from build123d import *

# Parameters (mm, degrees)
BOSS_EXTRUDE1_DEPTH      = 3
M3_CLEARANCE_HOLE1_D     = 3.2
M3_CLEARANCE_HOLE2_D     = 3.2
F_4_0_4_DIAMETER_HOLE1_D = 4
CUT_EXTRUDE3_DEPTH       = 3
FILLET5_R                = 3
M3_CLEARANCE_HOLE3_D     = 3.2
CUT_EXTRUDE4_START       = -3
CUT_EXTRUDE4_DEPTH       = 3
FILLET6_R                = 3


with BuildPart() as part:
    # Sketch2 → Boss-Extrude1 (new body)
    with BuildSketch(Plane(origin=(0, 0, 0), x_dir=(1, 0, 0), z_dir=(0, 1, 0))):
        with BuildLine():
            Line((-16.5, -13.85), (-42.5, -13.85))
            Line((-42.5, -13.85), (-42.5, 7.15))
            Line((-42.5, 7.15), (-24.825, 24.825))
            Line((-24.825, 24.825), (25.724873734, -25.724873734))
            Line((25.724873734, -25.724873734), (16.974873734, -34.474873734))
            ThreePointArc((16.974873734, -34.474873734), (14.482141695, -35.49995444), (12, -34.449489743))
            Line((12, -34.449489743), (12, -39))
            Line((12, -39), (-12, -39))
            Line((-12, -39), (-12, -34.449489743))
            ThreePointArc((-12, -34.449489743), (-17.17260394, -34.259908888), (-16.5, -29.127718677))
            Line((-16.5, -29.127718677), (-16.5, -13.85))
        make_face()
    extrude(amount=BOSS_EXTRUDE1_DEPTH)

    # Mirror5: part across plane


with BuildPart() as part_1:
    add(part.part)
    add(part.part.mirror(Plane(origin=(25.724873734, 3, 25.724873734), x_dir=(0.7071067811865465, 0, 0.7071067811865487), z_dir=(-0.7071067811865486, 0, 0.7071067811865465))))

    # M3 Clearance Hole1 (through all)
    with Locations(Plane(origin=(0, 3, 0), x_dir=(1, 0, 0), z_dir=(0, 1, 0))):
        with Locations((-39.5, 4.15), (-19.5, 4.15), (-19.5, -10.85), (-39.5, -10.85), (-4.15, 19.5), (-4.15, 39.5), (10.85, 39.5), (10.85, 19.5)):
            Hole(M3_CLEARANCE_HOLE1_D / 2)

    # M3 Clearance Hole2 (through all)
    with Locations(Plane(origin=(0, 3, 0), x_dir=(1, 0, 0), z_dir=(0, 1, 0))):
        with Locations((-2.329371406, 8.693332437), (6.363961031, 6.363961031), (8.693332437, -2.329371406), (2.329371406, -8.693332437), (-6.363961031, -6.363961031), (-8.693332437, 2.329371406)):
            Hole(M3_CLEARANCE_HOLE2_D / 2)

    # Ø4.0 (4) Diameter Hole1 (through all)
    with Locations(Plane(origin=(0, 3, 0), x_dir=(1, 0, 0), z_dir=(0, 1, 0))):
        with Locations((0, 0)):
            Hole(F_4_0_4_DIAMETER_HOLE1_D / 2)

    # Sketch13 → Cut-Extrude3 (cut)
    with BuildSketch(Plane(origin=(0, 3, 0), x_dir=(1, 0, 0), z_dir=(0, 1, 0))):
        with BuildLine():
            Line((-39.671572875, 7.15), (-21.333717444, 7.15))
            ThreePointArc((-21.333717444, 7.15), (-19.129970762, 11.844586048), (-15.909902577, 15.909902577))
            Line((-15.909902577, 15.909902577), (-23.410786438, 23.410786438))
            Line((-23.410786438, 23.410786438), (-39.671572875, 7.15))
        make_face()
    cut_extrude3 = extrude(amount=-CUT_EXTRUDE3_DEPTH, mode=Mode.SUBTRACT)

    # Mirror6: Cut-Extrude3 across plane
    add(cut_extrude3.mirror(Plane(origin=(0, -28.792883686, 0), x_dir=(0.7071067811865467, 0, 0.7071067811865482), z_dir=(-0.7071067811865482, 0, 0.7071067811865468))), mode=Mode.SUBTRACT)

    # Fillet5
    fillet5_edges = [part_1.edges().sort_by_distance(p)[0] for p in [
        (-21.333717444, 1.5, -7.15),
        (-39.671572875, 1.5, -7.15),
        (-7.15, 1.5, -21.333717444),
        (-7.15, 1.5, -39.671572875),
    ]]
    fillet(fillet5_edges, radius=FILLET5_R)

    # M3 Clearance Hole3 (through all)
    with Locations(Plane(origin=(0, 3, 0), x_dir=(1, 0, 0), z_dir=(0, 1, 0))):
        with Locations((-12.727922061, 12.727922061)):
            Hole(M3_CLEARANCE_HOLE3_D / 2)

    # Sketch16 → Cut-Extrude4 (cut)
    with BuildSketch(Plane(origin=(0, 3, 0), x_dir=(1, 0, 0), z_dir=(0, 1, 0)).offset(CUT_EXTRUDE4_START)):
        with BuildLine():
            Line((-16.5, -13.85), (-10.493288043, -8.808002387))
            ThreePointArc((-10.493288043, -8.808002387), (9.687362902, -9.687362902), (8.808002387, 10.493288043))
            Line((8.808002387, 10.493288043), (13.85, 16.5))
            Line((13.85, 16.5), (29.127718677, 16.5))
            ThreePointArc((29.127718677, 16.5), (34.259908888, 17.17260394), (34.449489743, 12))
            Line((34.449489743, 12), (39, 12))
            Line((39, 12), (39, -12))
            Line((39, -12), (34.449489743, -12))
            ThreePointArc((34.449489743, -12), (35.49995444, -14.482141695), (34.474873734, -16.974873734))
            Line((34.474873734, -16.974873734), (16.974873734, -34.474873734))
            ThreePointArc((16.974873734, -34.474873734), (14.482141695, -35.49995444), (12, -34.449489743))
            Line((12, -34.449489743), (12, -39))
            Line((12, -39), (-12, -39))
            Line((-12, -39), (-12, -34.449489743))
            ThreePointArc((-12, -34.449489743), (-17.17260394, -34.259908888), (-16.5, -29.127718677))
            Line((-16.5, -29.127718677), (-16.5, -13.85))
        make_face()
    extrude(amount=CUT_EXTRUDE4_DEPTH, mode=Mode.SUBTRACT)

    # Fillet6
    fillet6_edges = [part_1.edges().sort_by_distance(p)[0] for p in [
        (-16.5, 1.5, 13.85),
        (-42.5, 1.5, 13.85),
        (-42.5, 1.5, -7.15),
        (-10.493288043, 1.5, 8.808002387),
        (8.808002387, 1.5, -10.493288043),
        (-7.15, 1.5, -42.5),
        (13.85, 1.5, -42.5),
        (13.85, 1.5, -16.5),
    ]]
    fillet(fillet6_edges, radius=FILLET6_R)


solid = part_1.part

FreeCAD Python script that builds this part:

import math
import FreeCAD as App
import Part
import Sketcher
Q = App.Units.Quantity


def edges_at(feature, points):
    """Names of the edges that pass closest to the given points."""
    edges = feature.Shape.Edges
    near = lambda p: min(range(len(edges)), key=lambda i: edges[i].distToShape(Part.Vertex(*p))[0])
    return sorted({f"Edge{near(p) + 1}" for p in points})

doc = App.newDocument("Part")
body = doc.addObject("PartDesign::Body", "Body")

# Sketch on XZ plane
sketch1 = body.newObject("Sketcher::SketchObject", "Sketch")
sketch1.AttachmentSupport = (doc.getObject("XZ_Plane"), [""])
sketch1.MapMode = "FlatFace"
sketch1.addGeometry([
    Part.LineSegment(App.Vector(-42.5, 13.8, 0), App.Vector(-16.5, 13.8, 0)),  # 0
    Part.LineSegment(App.Vector(-16.5, 13.8, 0), App.Vector(-16.5, 29.1, 0)),  # 1
    Part.ArcOfCircle(Part.Circle(App.Vector(-14.5, 32, 0), App.Vector(0, 0, 1), 3.5), math.radians(44), math.radians(235)),  # 2
    Part.LineSegment(App.Vector(-12, 34.4, 0), App.Vector(-12, 39, 0)),  # 3
    Part.LineSegment(App.Vector(-12, 39, 0), App.Vector(12, 39, 0)),  # 4
    Part.LineSegment(App.Vector(12, 39, 0), App.Vector(12, 34.4, 0)),  # 5
    Part.ArcOfCircle(Part.Circle(App.Vector(14.5, 32, 0), App.Vector(0, 0, 1), 3.5), math.radians(45), math.radians(136)),  # 6
    Part.LineSegment(App.Vector(17, 34.5, 0), App.Vector(25.7, 25.7, 0)),  # 7
    Part.LineSegment(App.Vector(25.7, 25.7, 0), App.Vector(-24.8, -24.8, 0)),  # 8
    Part.LineSegment(App.Vector(-24.8, -24.8, 0), App.Vector(-42.5, -7.2, 0)),  # 9
    Part.LineSegment(App.Vector(-42.5, -7.2, 0), App.Vector(-42.5, 13.8, 0)),  # 10
], False)
sketch1.addConstraint([
    Sketcher.Constraint("Coincident", 0, 2, 1, 1),
    Sketcher.Constraint("Coincident", 1, 2, 2, 2),
    Sketcher.Constraint("Coincident", 2, 1, 3, 1),
    Sketcher.Constraint("Coincident", 3, 2, 4, 1),
    Sketcher.Constraint("Coincident", 4, 2, 5, 1),
    Sketcher.Constraint("Coincident", 5, 2, 6, 2),
    Sketcher.Constraint("Tangent", 6, 1, 7, 1),
    Sketcher.Constraint("Coincident", 7, 2, 8, 1),
    Sketcher.Constraint("Coincident", 8, 2, 9, 1),
    Sketcher.Constraint("Coincident", 9, 2, 10, 1),
    Sketcher.Constraint("Coincident", 10, 2, 0, 1),
    Sketcher.Constraint("Horizontal", 0),
    Sketcher.Constraint("Vertical", 1),
    Sketcher.Constraint("Vertical", 3),
    Sketcher.Constraint("Horizontal", 4),
    Sketcher.Constraint("Vertical", 5),
    Sketcher.Constraint("Vertical", 10),
    Sketcher.Constraint("Equal", 2, 6),
    Sketcher.Constraint("Symmetric", 2, 3, 6, 3, -2),
    Sketcher.Constraint("Perpendicular", 7, 8),
    Sketcher.Constraint("Perpendicular", 8, 9),
    Sketcher.Constraint("Horizontal", 2, 1, 5, 2),
    Sketcher.Constraint("Radius", 2, 3.5),
    Sketcher.Constraint("DistanceX", 0, 1, 0, 2, 26.0),
    Sketcher.Constraint("DistanceX", 4, 1, 4, 2, 24.0),
    Sketcher.Constraint("DistanceY", 10, 1, 10, 2, 21.0),
    Sketcher.Constraint("Angle", 7, Q("-45 deg")),
    Sketcher.Constraint("DistanceY", -1, 1, 2, 3, 32.0),
    Sketcher.Constraint("DistanceY", -1, 1, 3, 2, 39.0),
    Sketcher.Constraint("DistanceX", 2, 3, 6, 3, 29.0),
    Sketcher.Constraint("DistanceX", 0, 2, 2, 3, 2.0),
    Sketcher.Constraint("DistanceY", -1, 1, 0, 2, 13.85),
    Sketcher.Constraint("DistanceX", 6, 1, 7, 2, 8.75),
])
pad1 = body.newObject("PartDesign::Pad", "Pad")
pad1.Profile = sketch1
pad1.Length = 3
pad1.Reversed = True
body2 = doc.addObject("PartDesign::Body", "Body001")
doc.recompute()

body2.BaseFeature = body
doc.recompute()

mirroring = doc.addObject("Part::Mirroring", "Mirroring")
mirroring.Source = body
mirroring.Base = App.Vector(25.724874, 3, 25.724874)
mirroring.Normal = App.Vector(-0.707106781, 0, 0.707106781)
body3 = doc.addObject("PartDesign::Body", "Body002")
body3.BaseFeature = mirroring
boolean = body2.newObject("PartDesign::Boolean", "Boolean")
boolean.Type = "Fuse"
boolean.addObjects([body3])
doc.recompute()

# Sketch on XZ plane
sketch2 = body2.newObject("Sketcher::SketchObject", "Sketch001")
sketch2.AttachmentSupport = (doc.getObject("XZ_Plane001"), [""])
sketch2.MapMode = "FlatFace"
sketch2.AttachmentOffset = App.Placement(App.Vector(0, 0, -3), App.Rotation())
sketch2.addGeometry([
    Part.Circle(App.Vector(-39.5, -4.2, 0), App.Vector(0, 0, 1), 1.6),  # 0
    Part.Circle(App.Vector(-19.5, -4.2, 0), App.Vector(0, 0, 1), 1.6),  # 1
    Part.Circle(App.Vector(-19.5, 10.8, 0), App.Vector(0, 0, 1), 1.6),  # 2
    Part.Circle(App.Vector(-39.5, 10.8, 0), App.Vector(0, 0, 1), 1.6),  # 3
    Part.Circle(App.Vector(-4.2, -19.5, 0), App.Vector(0, 0, 1), 1.6),  # 4
    Part.Circle(App.Vector(-4.2, -39.5, 0), App.Vector(0, 0, 1), 1.6),  # 5
    Part.Circle(App.Vector(10.8, -39.5, 0), App.Vector(0, 0, 1), 1.6),  # 6
    Part.Circle(App.Vector(10.8, -19.5, 0), App.Vector(0, 0, 1), 1.6),  # 7
], False)
sketch2.addConstraint([
    Sketcher.Constraint("Equal", 0, 1),
    Sketcher.Constraint("Equal", 1, 2),
    Sketcher.Constraint("Equal", 2, 3),
    Sketcher.Constraint("Equal", 3, 4),
    Sketcher.Constraint("Equal", 4, 5),
    Sketcher.Constraint("Equal", 5, 6),
    Sketcher.Constraint("Equal", 6, 7),
    Sketcher.Constraint("Horizontal", 0, 3, 1, 3),
    Sketcher.Constraint("Horizontal", 2, 3, 3, 3),
    Sketcher.Constraint("Horizontal", 5, 3, 6, 3),
    Sketcher.Constraint("Horizontal", 4, 3, 7, 3),
    Sketcher.Constraint("Vertical", 1, 3, 2, 3),
    Sketcher.Constraint("Vertical", 0, 3, 3, 3),
    Sketcher.Constraint("Vertical", 4, 3, 5, 3),
    Sketcher.Constraint("Vertical", 6, 3, 7, 3),
    Sketcher.Constraint("Diameter", 0, 3.2),
    Sketcher.Constraint("DistanceX", 0, 3, 1, 3, 20.0),
    Sketcher.Constraint("DistanceY", 1, 3, 2, 3, 15.0),
    Sketcher.Constraint("DistanceY", 5, 3, 4, 3, 20.0),
    Sketcher.Constraint("DistanceX", 5, 3, 6, 3, 15.0),
    Sketcher.Constraint("DistanceX", 0, 3, -1, 1, 39.5),
    Sketcher.Constraint("DistanceY", 4, 3, -1, 1, 19.5),
    Sketcher.Constraint("DistanceY", 0, 3, -1, 1, 4.15),
    Sketcher.Constraint("DistanceX", 4, 3, -1, 1, 4.15),
])
doc.recompute()
hole = body2.newObject("PartDesign::Hole", "Hole")
hole.Profile = sketch2
hole.ThreadType = "None"
hole.Diameter = 3.2
hole.DepthType = "ThroughAll"
hole.Reversed = True

# Sketch on XZ plane
sketch3 = body2.newObject("Sketcher::SketchObject", "Sketch002")
sketch3.AttachmentSupport = (doc.getObject("XZ_Plane001"), [""])
sketch3.MapMode = "FlatFace"
sketch3.AttachmentOffset = App.Placement(App.Vector(0, 0, -3), App.Rotation())
sketch3.addGeometry([
    Part.Circle(App.Vector(-2.3, -8.7, 0), App.Vector(0, 0, 1), 1.6),  # 0
    Part.Circle(App.Vector(6.4, -6.4, 0), App.Vector(0, 0, 1), 1.6),  # 1
    Part.Circle(App.Vector(8.7, 2.3, 0), App.Vector(0, 0, 1), 1.6),  # 2
    Part.Circle(App.Vector(2.3, 8.7, 0), App.Vector(0, 0, 1), 1.6),  # 3
    Part.Circle(App.Vector(-6.4, 6.4, 0), App.Vector(0, 0, 1), 1.6),  # 4
    Part.Circle(App.Vector(-8.7, -2.3, 0), App.Vector(0, 0, 1), 1.6),  # 5
], False)
sketch3.addConstraint([
    Sketcher.Constraint("Equal", 0, 1),
    Sketcher.Constraint("Equal", 1, 2),
    Sketcher.Constraint("Equal", 2, 3),
    Sketcher.Constraint("Equal", 3, 4),
    Sketcher.Constraint("Equal", 4, 5),
    Sketcher.Constraint("Symmetric", 0, 3, 3, 3, -1, 1),
    Sketcher.Constraint("Symmetric", 1, 3, 4, 3, -1, 1),
    Sketcher.Constraint("Symmetric", 2, 3, 5, 3, -1, 1),
    Sketcher.Constraint("Diameter", 0, 3.2),
    Sketcher.Constraint("DistanceX", 0, 3, -1, 1, 2.329371),
    Sketcher.Constraint("DistanceX", -1, 1, 1, 3, 6.363961),
    Sketcher.Constraint("DistanceY", 1, 3, -1, 1, 6.363961),
    Sketcher.Constraint("DistanceY", -1, 1, 2, 3, 2.329371),
    Sketcher.Constraint("DistanceY", 0, 3, 1, 3, 2.329371),
    Sketcher.Constraint("DistanceX", 1, 3, 2, 3, 2.329371),
])
doc.recompute()
hole2 = body2.newObject("PartDesign::Hole", "Hole001")
hole2.Profile = sketch3
hole2.ThreadType = "None"
hole2.Diameter = 3.2
hole2.DepthType = "ThroughAll"
hole2.Reversed = True

# Sketch on XZ plane
sketch4 = body2.newObject("Sketcher::SketchObject", "Sketch003")
sketch4.AttachmentSupport = (doc.getObject("XZ_Plane001"), [""])
sketch4.MapMode = "FlatFace"
sketch4.AttachmentOffset = App.Placement(App.Vector(0, 0, -3), App.Rotation())
sketch4.addGeometry(Part.Circle(App.Vector(0, 0, 0), App.Vector(0, 0, 1), 2), False)
sketch4.addConstraint([
    Sketcher.Constraint("Coincident", 0, 3, -1, 1),
    Sketcher.Constraint("Diameter", 0, 4.0),
])
doc.recompute()
hole3 = body2.newObject("PartDesign::Hole", "Hole002")
hole3.Profile = sketch4
hole3.ThreadType = "None"
hole3.Diameter = 4
hole3.DepthType = "ThroughAll"
hole3.Reversed = True

# Sketch on XZ plane
sketch5 = body2.newObject("Sketcher::SketchObject", "Sketch004")
sketch5.AttachmentSupport = (doc.getObject("XZ_Plane001"), [""])
sketch5.MapMode = "FlatFace"
sketch5.AttachmentOffset = App.Placement(App.Vector(0, 0, -3), App.Rotation())
sketch5.addGeometry([
    Part.LineSegment(App.Vector(-40, -7, 0), App.Vector(-21, -7, 0)),
    Part.ArcOfCircle(Part.Circle(App.Vector(0, 0, 0), App.Vector(0, 0, 1), 22), math.radians(-161), math.radians(-135)),
    Part.LineSegment(App.Vector(-16, -16, 0), App.Vector(-23, -23, 0)),
    Part.LineSegment(App.Vector(-23, -23, 0), App.Vector(-40, -7, 0)),
], False)
sketch5.addConstraint([
    Sketcher.Constraint("Coincident", 0, 2, 1, 1),
    Sketcher.Constraint("Coincident", 1, 2, 2, 1),
    Sketcher.Constraint("Coincident", 2, 2, 3, 1),
    Sketcher.Constraint("Coincident", 3, 2, 0, 1),
    Sketcher.Constraint("Horizontal", 0),
    Sketcher.Constraint("Coincident", 1, 3, -1, 1),
    Sketcher.Constraint("Perpendicular", 2, 3),
    Sketcher.Constraint("Radius", 1, 22.5),
    Sketcher.Constraint("Angle", 2, Q("-135 deg")),
    Sketcher.Constraint("DistanceY", 0, 2, -1, 1, 7.15),
    Sketcher.Constraint("Distance", 2, 10.607852),
    Sketcher.Constraint("DistanceX", 2, 2, 0, 2, 2.077069),
])
pocket1 = body2.newObject("PartDesign::Pocket", "Pocket")
pocket1.Profile = sketch5
pocket1.Length = 3
pocket1.Reversed = True
doc.recompute()

datumplane = body2.newObject("PartDesign::Plane", "DatumPlane")
datumplane.Placement = App.Placement(App.Vector(0, 0, 0), App.Rotation(App.Vector(-0.707106781, 0, -0.707106781), App.Vector(0, -1, 0), App.Vector(-0.707106781, 0, 0.707106781), "ZXY"))
mirrored = body2.newObject("PartDesign::Mirrored", "Mirrored")
mirrored.Originals = [pocket1]
mirrored.MirrorPlane = (datumplane, [""])
body2.Tip = mirrored
doc.recompute()

fillet = body2.newObject("PartDesign::Fillet", "Fillet")
fillet.Base = (mirrored, edges_at(mirrored, [
    (-21.334, 1.5, -7.15),
    (-39.672, 1.5, -7.15),
    (-7.15, 1.5, -21.334),
    (-7.15, 1.5, -39.672),
]))
fillet.Radius = 3

# Sketch on XZ plane
sketch6 = body2.newObject("Sketcher::SketchObject", "Sketch005")
sketch6.AttachmentSupport = (doc.getObject("XZ_Plane001"), [""])
sketch6.MapMode = "FlatFace"
sketch6.AttachmentOffset = App.Placement(App.Vector(0, 0, -3), App.Rotation())
sketch6.addGeometry(Part.Circle(App.Vector(-12.7, -12.7, 0), App.Vector(0, 0, 1), 1.6), False)
sketch6.addConstraint([
    Sketcher.Constraint("Diameter", 0, 3.2),
    Sketcher.Constraint("DistanceX", 0, 3, -1, 1, 12.727922),
    Sketcher.Constraint("DistanceY", 0, 3, -1, 1, 12.727922),
])
doc.recompute()
hole4 = body2.newObject("PartDesign::Hole", "Hole003")
hole4.Profile = sketch6
hole4.ThreadType = "None"
hole4.Diameter = 3.2
hole4.DepthType = "ThroughAll"
hole4.Reversed = True

# Sketch on XZ plane
sketch7 = body2.newObject("Sketcher::SketchObject", "Sketch006")
sketch7.AttachmentSupport = (doc.getObject("XZ_Plane001"), [""])
sketch7.MapMode = "FlatFace"
sketch7.addGeometry([
    Part.LineSegment(App.Vector(-10.5, 8.8, 0), App.Vector(-16.5, 13.8, 0)),  # 0
    Part.LineSegment(App.Vector(-16.5, 13.8, 0), App.Vector(-16.5, 29.1, 0)),  # 1
    Part.ArcOfCircle(Part.Circle(App.Vector(-14.5, 32, 0), App.Vector(0, 0, 1), 3.5), math.radians(44), math.radians(235)),  # 2
    Part.LineSegment(App.Vector(-12, 34.4, 0), App.Vector(-12, 39, 0)),  # 3
    Part.LineSegment(App.Vector(-12, 39, 0), App.Vector(12, 39, 0)),  # 4
    Part.LineSegment(App.Vector(12, 39, 0), App.Vector(12, 34.4, 0)),  # 5
    Part.ArcOfCircle(Part.Circle(App.Vector(14.5, 32, 0), App.Vector(0, 0, 1), 3.5), math.radians(45), math.radians(136)),  # 6
    Part.LineSegment(App.Vector(17, 34.5, 0), App.Vector(34.5, 17, 0)),  # 7
    Part.ArcOfCircle(Part.Circle(App.Vector(32, 14.5, 0), App.Vector(0, 0, 1), 3.5), math.radians(-46), math.radians(45)),  # 8
    Part.LineSegment(App.Vector(34.4, 12, 0), App.Vector(39, 12, 0)),  # 9
    Part.LineSegment(App.Vector(39, 12, 0), App.Vector(39, -12, 0)),  # 10
    Part.LineSegment(App.Vector(39, -12, 0), App.Vector(34.4, -12, 0)),  # 11
    Part.ArcOfCircle(Part.Circle(App.Vector(32, -14.5, 0), App.Vector(0, 0, 1), 3.5), math.radians(-145), math.radians(46)),  # 12
    Part.LineSegment(App.Vector(29.1, -16.5, 0), App.Vector(13.8, -16.5, 0)),  # 13
    Part.LineSegment(App.Vector(13.8, -16.5, 0), App.Vector(8.8, -10.5, 0)),  # 14
    Part.ArcOfCircle(Part.Circle(App.Vector(0, 0, 0), App.Vector(0, 0, 1), 13.7), math.radians(-50), math.radians(140)),  # 15
], False)
sketch7.addConstraint([
    Sketcher.Constraint("Coincident", 0, 2, 1, 1),
    Sketcher.Constraint("Coincident", 1, 2, 2, 2),
    Sketcher.Constraint("Coincident", 2, 1, 3, 1),
    Sketcher.Constraint("Coincident", 3, 2, 4, 1),
    Sketcher.Constraint("Coincident", 4, 2, 5, 1),
    Sketcher.Constraint("Coincident", 5, 2, 6, 2),
    Sketcher.Constraint("Tangent", 6, 1, 7, 1),
    Sketcher.Constraint("Tangent", 7, 2, 8, 2),
    Sketcher.Constraint("Coincident", 8, 1, 9, 1),
    Sketcher.Constraint("Coincident", 9, 2, 10, 1),
    Sketcher.Constraint("Coincident", 10, 2, 11, 1),
    Sketcher.Constraint("Coincident", 11, 2, 12, 2),
    Sketcher.Constraint("Coincident", 12, 1, 13, 1),
    Sketcher.Constraint("Coincident", 13, 2, 14, 1),
    Sketcher.Constraint("Coincident", 14, 2, 15, 1),
    Sketcher.Constraint("Coincident", 15, 2, 0, 1),
    Sketcher.Constraint("Vertical", 1),
    Sketcher.Constraint("Vertical", 3),
    Sketcher.Constraint("Horizontal", 4),
    Sketcher.Constraint("Vertical", 5),
    Sketcher.Constraint("Horizontal", 9),
    Sketcher.Constraint("Vertical", 10),
    Sketcher.Constraint("Horizontal", 11),
    Sketcher.Constraint("Horizontal", 13),
    Sketcher.Constraint("Coincident", 15, 3, -1, 1),
    Sketcher.Constraint("Equal", 2, 6),
    Sketcher.Constraint("Equal", 6, 8),
    Sketcher.Constraint("Equal", 8, 12),
    Sketcher.Constraint("Symmetric", 2, 3, 6, 3, -2),
    Sketcher.Constraint("Symmetric", 8, 3, 12, 3, -1),
    Sketcher.Constraint("Horizontal", 2, 1, 5, 2),
    Sketcher.Constraint("Vertical", 8, 1, 11, 2),
    Sketcher.Constraint("Equal", 13, 1),
    Sketcher.Constraint("Equal", 11, 3),
    Sketcher.Constraint("Equal", 4, 10),
    Sketcher.Constraint("Equal", 0, 14),
    Sketcher.Constraint("Radius", 2, 3.5),
    Sketcher.Constraint("Radius", 15, 13.7),
    Sketcher.Constraint("DistanceX", 4, 1, 4, 2, 24.0),
    Sketcher.Constraint("Angle", 7, Q("-45 deg")),
    Sketcher.Constraint("DistanceY", -1, 1, 2, 3, 32.0),
    Sketcher.Constraint("DistanceX", -1, 1, 8, 3, 32.0),
    Sketcher.Constraint("DistanceY", -1, 1, 3, 2, 39.0),
    Sketcher.Constraint("DistanceX", 2, 3, 6, 3, 29.0),
    Sketcher.Constraint("DistanceX", 0, 2, 2, 3, 2.0),
    Sketcher.Constraint("DistanceY", -1, 1, 0, 2, 13.85),
    Sketcher.Constraint("DistanceY", 14, 2, -1, 1, 10.493288),
    Sketcher.Constraint("DistanceX", 15, 2, -1, 1, 10.493288),
])
pocket2 = body2.newObject("PartDesign::Pocket", "Pocket001")
pocket2.Profile = sketch7
pocket2.Length = 3
doc.recompute()

fillet2 = body2.newObject("PartDesign::Fillet", "Fillet001")
fillet2.Base = (pocket2, edges_at(pocket2, [
    (-16.5, 1.5, 13.85),
    (-42.5, 1.5, 13.85),
    (-42.5, 1.5, -7.15),
    (-10.493, 1.5, 8.808),
    (8.808, 1.5, -10.493),
    (-7.15, 1.5, -42.5),
    (13.85, 1.5, -42.5),
    (13.85, 1.5, -16.5),
]))
fillet2.Radius = 3
mirroring.Visibility = False

doc.recompute()
